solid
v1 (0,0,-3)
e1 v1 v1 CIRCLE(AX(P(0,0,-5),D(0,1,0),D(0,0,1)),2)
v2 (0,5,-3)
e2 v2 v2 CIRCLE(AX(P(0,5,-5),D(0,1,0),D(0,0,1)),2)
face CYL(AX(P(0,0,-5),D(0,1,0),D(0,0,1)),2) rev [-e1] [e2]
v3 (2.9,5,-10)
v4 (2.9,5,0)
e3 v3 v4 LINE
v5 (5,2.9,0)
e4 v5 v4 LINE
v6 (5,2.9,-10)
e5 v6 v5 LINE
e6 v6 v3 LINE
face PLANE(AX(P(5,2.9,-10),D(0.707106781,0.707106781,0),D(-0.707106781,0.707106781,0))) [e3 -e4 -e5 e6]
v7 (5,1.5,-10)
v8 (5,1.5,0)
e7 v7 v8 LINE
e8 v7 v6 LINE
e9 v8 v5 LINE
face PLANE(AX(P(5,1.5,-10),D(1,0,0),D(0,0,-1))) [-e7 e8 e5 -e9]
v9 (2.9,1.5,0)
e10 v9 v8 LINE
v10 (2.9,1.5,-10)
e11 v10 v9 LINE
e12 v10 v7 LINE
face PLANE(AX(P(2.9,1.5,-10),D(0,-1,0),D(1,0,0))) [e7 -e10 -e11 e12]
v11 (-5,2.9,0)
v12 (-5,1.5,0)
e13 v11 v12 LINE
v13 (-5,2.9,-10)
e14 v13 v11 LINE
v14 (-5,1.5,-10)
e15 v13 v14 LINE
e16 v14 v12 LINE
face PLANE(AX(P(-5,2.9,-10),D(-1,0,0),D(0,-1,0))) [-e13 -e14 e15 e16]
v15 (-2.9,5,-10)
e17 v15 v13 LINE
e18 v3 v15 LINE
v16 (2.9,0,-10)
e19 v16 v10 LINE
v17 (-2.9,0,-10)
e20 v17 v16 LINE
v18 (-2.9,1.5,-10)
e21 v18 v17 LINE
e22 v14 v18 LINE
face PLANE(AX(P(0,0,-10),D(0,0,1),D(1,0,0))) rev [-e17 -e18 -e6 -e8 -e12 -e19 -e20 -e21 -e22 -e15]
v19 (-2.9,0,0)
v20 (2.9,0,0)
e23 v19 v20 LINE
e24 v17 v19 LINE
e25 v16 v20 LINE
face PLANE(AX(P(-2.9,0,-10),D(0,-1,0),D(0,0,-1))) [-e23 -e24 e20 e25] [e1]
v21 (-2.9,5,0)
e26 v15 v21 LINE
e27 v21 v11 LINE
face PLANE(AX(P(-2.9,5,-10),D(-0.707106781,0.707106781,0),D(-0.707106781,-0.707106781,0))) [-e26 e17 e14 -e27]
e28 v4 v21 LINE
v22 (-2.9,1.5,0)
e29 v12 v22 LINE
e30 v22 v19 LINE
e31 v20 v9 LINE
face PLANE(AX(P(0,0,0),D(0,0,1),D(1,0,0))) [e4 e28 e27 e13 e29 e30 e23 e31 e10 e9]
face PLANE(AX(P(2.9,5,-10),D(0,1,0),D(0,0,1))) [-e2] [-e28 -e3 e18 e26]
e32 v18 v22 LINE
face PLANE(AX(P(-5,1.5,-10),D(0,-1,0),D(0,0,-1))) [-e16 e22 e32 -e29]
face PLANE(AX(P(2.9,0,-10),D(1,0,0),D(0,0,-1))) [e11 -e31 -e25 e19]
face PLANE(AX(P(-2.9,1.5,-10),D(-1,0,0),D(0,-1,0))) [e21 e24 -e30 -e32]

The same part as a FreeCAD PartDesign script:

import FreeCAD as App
import Part
import Sketcher


def add_polygon(sketch, points):
    """Adds a closed chain of lines whose ends are joined by coincident constraints."""
    first, n = sketch.GeometryCount, len(points)
    for a, b in zip(points, points[1:] + points[:1]):
        sketch.addGeometry(Part.LineSegment(App.Vector(*a, 0), App.Vector(*b, 0)), False)
    for i in range(n):
        sketch.addConstraint(Sketcher.Constraint("Coincident", first + i, 2, first + (i + 1) % n, 1))

doc = App.newDocument("Part")
params = doc.addObject("Spreadsheet::Sheet", "Params")
for row, (alias, value) in enumerate([
    ("sketch1_width", "5.8 mm"),
    ("sketch1_width2", "2.1 mm"),
    ("sketch1_height", "1.5 mm"),
    ("sketch1_height2", "1.4 mm"),
    ("pad1_length", "10 mm"),
    ("sketch2_diameter", "4 mm"),
], start=1):
    params.set(f"A{row}", alias)
    params.set(f"B{row}", "=" + value)
    params.setAlias(f"B{row}", alias)

body = doc.addObject("PartDesign::Body", "Body")

# Sketch on XY plane
sketch1 = body.newObject("Sketcher::SketchObject", "Sketch")
sketch1.AttachmentSupport = (doc.getObject("XY_Plane"), [""])
sketch1.MapMode = "FlatFace"
add_polygon(sketch1, [(-2.9, 0), (2.9, 0), (2.9, 1.5), (5, 1.5), (5, 2.9), (2.9, 5), (-2.9, 5), (-5, 2.9), (-5, 1.5), (-2.9, 1.5)])  # lines 0-9
sketch1.addConstraint([
    Sketcher.Constraint("Horizontal", 0),
    Sketcher.Constraint("Vertical", 1),
    Sketcher.Constraint("Horizontal", 2),
    Sketcher.Constraint("Vertical", 3),
    Sketcher.Constraint("Horizontal", 5),
    Sketcher.Constraint("Vertical", 7),
    Sketcher.Constraint("Horizontal", 8),
    Sketcher.Constraint("Vertical", 9),
    Sketcher.Constraint("Symmetric", 0, 2, 9, 2, -1, 1),
    Sketcher.Constraint("Symmetric", 3, 2, 6, 2, -2),
    Sketcher.Constraint("Perpendicular", 4, 6),
    Sketcher.Constraint("Horizontal", 2, 2, 7, 2),
    Sketcher.Constraint("Vertical", 1, 2, 4, 2),
    Sketcher.Constraint("Vertical", 5, 2, 8, 2),
    Sketcher.Constraint("DistanceX", 0, 1, 0, 2, 5.8),
    Sketcher.Constraint("DistanceX", 2, 1, 2, 2, 2.1),
    Sketcher.Constraint("DistanceY", 1, 1, 1, 2, 1.5),
    Sketcher.Constraint("DistanceY", 3, 1, 3, 2, 1.4),
])
sketch1.setExpression("Constraints[24]", "Params.sketch1_width")
sketch1.setExpression("Constraints[25]", "Params.sketch1_width2")
sketch1.setExpression("Constraints[26]", "Params.sketch1_height")
sketch1.setExpression("Constraints[27]", "Params.sketch1_height2")
pad1 = body.newObject("PartDesign::Pad", "Pad")
pad1.Profile = sketch1
pad1.setExpression("Length", "Params.pad1_length")
pad1.Reversed = True

# Sketch on XZ plane
sketch2 = body.newObject("Sketcher::SketchObject", "Sketch001")
sketch2.AttachmentSupport = (doc.getObject("XZ_Plane"), [""])
sketch2.MapMode = "FlatFace"
sketch2.AttachmentOffset = App.Placement(App.Vector(0, 0, -5), App.Rotation())
sketch2.addGeometry(Part.Circle(App.Vector(0, -5, 0), App.Vector(0, 0, 1), 2), False)
sketch2.addConstraint([
    Sketcher.Constraint("PointOnObject", 0, 3, -2),
    Sketcher.Constraint("Diameter", 0, 4.0),
    Sketcher.Constraint("DistanceY", 0, 3, -1, 1, 5.0),
])
sketch2.setExpression("Constraints[1]", "Params.sketch2_diameter")
pocket1 = body.newObject("PartDesign::Pocket", "Pocket")
pocket1.Profile = sketch2
pocket1.Type = "ThroughAll"
pocket1.Reversed = True

doc.recompute()
